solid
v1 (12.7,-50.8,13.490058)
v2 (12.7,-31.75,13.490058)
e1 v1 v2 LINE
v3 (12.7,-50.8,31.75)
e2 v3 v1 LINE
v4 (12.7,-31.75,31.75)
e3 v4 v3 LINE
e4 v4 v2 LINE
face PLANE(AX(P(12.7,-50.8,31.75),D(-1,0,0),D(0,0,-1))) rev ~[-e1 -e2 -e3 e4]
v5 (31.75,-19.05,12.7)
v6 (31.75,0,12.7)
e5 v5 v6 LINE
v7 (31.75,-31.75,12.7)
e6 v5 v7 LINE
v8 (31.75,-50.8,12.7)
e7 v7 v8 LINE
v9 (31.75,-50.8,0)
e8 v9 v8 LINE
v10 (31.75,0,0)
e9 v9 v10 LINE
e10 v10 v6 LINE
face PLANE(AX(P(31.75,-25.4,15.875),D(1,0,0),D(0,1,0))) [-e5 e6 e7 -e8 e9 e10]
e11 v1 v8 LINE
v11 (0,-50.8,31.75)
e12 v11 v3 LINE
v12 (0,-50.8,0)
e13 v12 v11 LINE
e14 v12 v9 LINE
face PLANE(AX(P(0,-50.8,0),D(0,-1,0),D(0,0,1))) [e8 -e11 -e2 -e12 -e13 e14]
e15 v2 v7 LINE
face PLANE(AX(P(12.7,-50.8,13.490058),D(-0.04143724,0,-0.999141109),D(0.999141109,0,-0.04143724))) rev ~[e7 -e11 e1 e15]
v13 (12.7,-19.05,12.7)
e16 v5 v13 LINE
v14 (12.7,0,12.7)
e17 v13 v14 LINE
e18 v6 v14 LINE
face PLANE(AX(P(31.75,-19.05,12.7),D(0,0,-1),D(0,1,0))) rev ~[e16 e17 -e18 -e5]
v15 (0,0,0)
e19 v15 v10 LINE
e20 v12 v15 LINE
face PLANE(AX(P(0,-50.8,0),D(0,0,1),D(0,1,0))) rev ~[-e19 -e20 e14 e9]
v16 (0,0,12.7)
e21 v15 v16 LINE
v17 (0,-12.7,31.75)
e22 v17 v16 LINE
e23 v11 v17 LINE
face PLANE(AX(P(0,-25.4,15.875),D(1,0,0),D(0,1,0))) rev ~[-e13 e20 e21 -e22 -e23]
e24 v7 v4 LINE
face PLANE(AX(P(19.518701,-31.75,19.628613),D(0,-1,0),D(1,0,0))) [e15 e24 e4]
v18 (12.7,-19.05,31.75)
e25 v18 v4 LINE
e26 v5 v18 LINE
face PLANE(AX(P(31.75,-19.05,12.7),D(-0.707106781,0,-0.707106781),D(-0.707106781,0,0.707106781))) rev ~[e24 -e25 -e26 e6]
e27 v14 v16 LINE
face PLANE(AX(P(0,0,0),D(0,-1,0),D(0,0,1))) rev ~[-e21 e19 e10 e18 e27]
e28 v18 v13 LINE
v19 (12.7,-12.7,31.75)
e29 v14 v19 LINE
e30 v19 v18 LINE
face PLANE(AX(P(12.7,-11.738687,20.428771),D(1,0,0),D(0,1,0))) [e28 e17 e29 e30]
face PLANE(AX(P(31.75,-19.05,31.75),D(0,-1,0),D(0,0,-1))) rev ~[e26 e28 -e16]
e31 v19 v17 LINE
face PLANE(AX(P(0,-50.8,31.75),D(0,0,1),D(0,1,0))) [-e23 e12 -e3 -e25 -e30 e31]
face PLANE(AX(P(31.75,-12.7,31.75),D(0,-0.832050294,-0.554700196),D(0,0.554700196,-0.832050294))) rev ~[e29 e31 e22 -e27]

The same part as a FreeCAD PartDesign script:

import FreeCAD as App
import Part
import Sketcher
Q = App.Units.Quantity


def add_polygon(sketch, points):
    """Adds a closed chain of lines whose ends are joined by coincident constraints."""
    first, n = sketch.GeometryCount, len(points)
    for a, b in zip(points, points[1:] + points[:1]):
        sketch.addGeometry(Part.LineSegment(App.Vector(*a, 0), App.Vector(*b, 0)), False)
    for i in range(n):
        sketch.addConstraint(Sketcher.Constraint("Coincident", first + i, 2, first + (i + 1) % n, 1))

doc = App.newDocument("Part")
params = doc.addObject("Spreadsheet::Sheet", "Params")
for row, (alias, value) in enumerate([
    ("sketch1_width", "2 in"),
    ("sketch1_height", "1.25 in"),
    ("pad1_length", "1.25 in"),
    ("sketch2_width", "0.5 in"),
    ("sketch2_height", "0.75 in"),
    ("sketch3_width", "0.25 in"),
    ("sketch3_width2", "0.75 in"),
    ("pocket2_length", "0.75 in"),
    ("sketch4_width", "0.75 in"),
    ("pocket4_length", "0.75 in"),
], start=1):
    params.set(f"A{row}", alias)
    params.set(f"B{row}", "=" + value)
    params.setAlias(f"B{row}", alias)

body = doc.addObject("PartDesign::Body", "Body")

sketch1 = doc.addObject("Sketcher::SketchObject", "Sketch")
body.addObject(sketch1)
sketch1.AttachmentSupport = (doc.YZ_Plane, [""])
sketch1.MapMode = "FlatFace"
add_polygon(sketch1, [(-51, 32), (-51, 0), (0, 0), (0, 32)])
sketch1.addConstraint([
    Sketcher.Constraint("Vertical", 0),
    Sketcher.Constraint("Horizontal", 1),
    Sketcher.Constraint("Vertical", 2),
    Sketcher.Constraint("Horizontal", 3),
    Sketcher.Constraint("Coincident", 1, 2, -1, 1),
    Sketcher.Constraint("DistanceX", 1, 1, 1, 2, Q("2 in")),
    Sketcher.Constraint("DistanceY", 0, 2, 0, 1, Q("1.25 in")),
])
sketch1.setExpression("Constraints[9]", "Params.sketch1_width")
sketch1.setExpression("Constraints[10]", "Params.sketch1_height")
pad1 = doc.addObject("PartDesign::Pad", "Pad")
body.addObject(pad1)
pad1.Profile = sketch1
pad1.setExpression("Length", "Params.pad1_length")

sketch2 = doc.addObject("Sketcher::SketchObject", "Sketch001")
body.addObject(sketch2)
sketch2.AttachmentSupport = (doc.YZ_Plane, [""])
sketch2.MapMode = "FlatFace"
sketch2.AttachmentOffset = App.Placement(App.Vector(0, 0, 1.25 * 25.4), App.Rotation())
add_polygon(sketch2, [(0, 32), (-13, 32), (0, 13)])
sketch2.addConstraint([
    Sketcher.Constraint("Horizontal", 0),
    Sketcher.Constraint("Vertical", 2),
    Sketcher.Constraint("PointOnObject", 1, 2, -2),
    Sketcher.Constraint("DistanceX", 0, 2, 0, 1, Q("0.5 in")),
    Sketcher.Constraint("DistanceY", 2, 1, 2, 2, Q("0.75 in")),
    Sketcher.Constraint("DistanceY", -1, 1, 1, 2, Q("0.5 in")),
])
sketch2.setExpression("Constraints[6]", "Params.sketch2_width")
sketch2.setExpression("Constraints[7]", "Params.sketch2_height")
pocket1 = doc.addObject("PartDesign::Pocket", "Pocket")
body.addObject(pocket1)
pocket1.Profile = sketch2
pocket1.Type = "ThroughAll"

sketch3 = doc.addObject("Sketcher::SketchObject", "Sketch002")
body.addObject(sketch3)
sketch3.AttachmentSupport = (doc.YZ_Plane, [""])
sketch3.MapMode = "FlatFace"
sketch3.AttachmentOffset = App.Placement(App.Vector(0, 0, 1.25 * 25.4), App.Rotation())
add_polygon(sketch3, [(0, 13), (-13, 32), (-19, 32), (-19, 13)])
sketch3.addConstraint([
    Sketcher.Constraint("Horizontal", 1),
    Sketcher.Constraint("Vertical", 2),
    Sketcher.Constraint("Horizontal", 3),
    Sketcher.Constraint("PointOnObject", 3, 2, -2),
    Sketcher.Constraint("Equal", 3, 2),
    Sketcher.Constraint("DistanceX", 1, 2, 1, 1, Q("0.25 in")),
    Sketcher.Constraint("DistanceX", 3, 1, 3, 2, Q("0.75 in")),
    Sketcher.Constraint("DistanceY", -1, 1, 2, 2, Q("0.5 in")),
])
sketch3.setExpression("Constraints[9]", "Params.sketch3_width")
sketch3.setExpression("Constraints[10]", "Params.sketch3_width2")
pocket2 = doc.addObject("PartDesign::Pocket", "Pocket001")
body.addObject(pocket2)
pocket2.Profile = sketch3
pocket2.setExpression("Length", "Params.pocket2_length")

sketch4 = doc.addObject("Sketcher::SketchObject", "Sketch003")
body.addObject(sketch4)
sketch4.AttachmentSupport = (doc.XZ_Plane, [""])
sketch4.MapMode = "FlatFace"
sketch4.AttachmentOffset = App.Placement(App.Vector(0, 0, 0.75 * 25.4), App.Rotation())
add_polygon(sketch4, [(32, 13), (13, 32), (32, 32)])
sketch4.addConstraint([
    Sketcher.Constraint("Horizontal", 1),
    Sketcher.Constraint("Vertical", 2),
    Sketcher.Constraint("Equal", 1, 2),
    Sketcher.Constraint("DistanceX", 1, 1, 1, 2, Q("0.75 in")),
    Sketcher.Constraint("DistanceX", -1, 1, 0, 2, Q("0.5 in")),
    Sketcher.Constraint("DistanceY", -1, 1, 2, 2, Q("0.5 in")),
])
sketch4.setExpression("Constraints[6]", "Params.sketch4_width")
pocket3 = doc.addObject("PartDesign::Pocket", "Pocket002")
body.addObject(pocket3)
pocket3.Profile = sketch4
pocket3.Type = "ThroughAll"
pocket3.Reversed = True

sketch5 = doc.addObject("Sketcher::SketchObject", "Sketch004")
body.addObject(sketch5)
sketch5.AttachmentSupport = (doc.XZ_Plane, [""])
sketch5.MapMode = "FlatFace"
sketch5.AttachmentOffset = App.Placement(App.Vector(0, 0, 2 * 25.4), App.Rotation())
add_polygon(sketch5, [(32, 13), (13, 32), (13, 13)])
sketch5.addConstraint([
    Sketcher.Constraint("Vertical", 1),
    Sketcher.Constraint("Angle", 0, Q("135 deg")),
    Sketcher.Constraint("DistanceX", -1, 1, 0, 2, Q("0.5 in")),
    Sketcher.Constraint("DistanceY", -1, 1, 2, 2, Q("0.5 in")),
    Sketcher.Constraint("DistanceY", -1, 1, 0, 2, Q("1.25 in")),
    Sketcher.Constraint("DistanceY", 1, 2, 1, 1, Q("18.259942 mm")),
])
pocket4 = doc.addObject("PartDesign::Pocket", "Pocket003")
body.addObject(pocket4)
pocket4.Profile = sketch5
pocket4.setExpression("Length", "Params.pocket4_length")

doc.recompute()
